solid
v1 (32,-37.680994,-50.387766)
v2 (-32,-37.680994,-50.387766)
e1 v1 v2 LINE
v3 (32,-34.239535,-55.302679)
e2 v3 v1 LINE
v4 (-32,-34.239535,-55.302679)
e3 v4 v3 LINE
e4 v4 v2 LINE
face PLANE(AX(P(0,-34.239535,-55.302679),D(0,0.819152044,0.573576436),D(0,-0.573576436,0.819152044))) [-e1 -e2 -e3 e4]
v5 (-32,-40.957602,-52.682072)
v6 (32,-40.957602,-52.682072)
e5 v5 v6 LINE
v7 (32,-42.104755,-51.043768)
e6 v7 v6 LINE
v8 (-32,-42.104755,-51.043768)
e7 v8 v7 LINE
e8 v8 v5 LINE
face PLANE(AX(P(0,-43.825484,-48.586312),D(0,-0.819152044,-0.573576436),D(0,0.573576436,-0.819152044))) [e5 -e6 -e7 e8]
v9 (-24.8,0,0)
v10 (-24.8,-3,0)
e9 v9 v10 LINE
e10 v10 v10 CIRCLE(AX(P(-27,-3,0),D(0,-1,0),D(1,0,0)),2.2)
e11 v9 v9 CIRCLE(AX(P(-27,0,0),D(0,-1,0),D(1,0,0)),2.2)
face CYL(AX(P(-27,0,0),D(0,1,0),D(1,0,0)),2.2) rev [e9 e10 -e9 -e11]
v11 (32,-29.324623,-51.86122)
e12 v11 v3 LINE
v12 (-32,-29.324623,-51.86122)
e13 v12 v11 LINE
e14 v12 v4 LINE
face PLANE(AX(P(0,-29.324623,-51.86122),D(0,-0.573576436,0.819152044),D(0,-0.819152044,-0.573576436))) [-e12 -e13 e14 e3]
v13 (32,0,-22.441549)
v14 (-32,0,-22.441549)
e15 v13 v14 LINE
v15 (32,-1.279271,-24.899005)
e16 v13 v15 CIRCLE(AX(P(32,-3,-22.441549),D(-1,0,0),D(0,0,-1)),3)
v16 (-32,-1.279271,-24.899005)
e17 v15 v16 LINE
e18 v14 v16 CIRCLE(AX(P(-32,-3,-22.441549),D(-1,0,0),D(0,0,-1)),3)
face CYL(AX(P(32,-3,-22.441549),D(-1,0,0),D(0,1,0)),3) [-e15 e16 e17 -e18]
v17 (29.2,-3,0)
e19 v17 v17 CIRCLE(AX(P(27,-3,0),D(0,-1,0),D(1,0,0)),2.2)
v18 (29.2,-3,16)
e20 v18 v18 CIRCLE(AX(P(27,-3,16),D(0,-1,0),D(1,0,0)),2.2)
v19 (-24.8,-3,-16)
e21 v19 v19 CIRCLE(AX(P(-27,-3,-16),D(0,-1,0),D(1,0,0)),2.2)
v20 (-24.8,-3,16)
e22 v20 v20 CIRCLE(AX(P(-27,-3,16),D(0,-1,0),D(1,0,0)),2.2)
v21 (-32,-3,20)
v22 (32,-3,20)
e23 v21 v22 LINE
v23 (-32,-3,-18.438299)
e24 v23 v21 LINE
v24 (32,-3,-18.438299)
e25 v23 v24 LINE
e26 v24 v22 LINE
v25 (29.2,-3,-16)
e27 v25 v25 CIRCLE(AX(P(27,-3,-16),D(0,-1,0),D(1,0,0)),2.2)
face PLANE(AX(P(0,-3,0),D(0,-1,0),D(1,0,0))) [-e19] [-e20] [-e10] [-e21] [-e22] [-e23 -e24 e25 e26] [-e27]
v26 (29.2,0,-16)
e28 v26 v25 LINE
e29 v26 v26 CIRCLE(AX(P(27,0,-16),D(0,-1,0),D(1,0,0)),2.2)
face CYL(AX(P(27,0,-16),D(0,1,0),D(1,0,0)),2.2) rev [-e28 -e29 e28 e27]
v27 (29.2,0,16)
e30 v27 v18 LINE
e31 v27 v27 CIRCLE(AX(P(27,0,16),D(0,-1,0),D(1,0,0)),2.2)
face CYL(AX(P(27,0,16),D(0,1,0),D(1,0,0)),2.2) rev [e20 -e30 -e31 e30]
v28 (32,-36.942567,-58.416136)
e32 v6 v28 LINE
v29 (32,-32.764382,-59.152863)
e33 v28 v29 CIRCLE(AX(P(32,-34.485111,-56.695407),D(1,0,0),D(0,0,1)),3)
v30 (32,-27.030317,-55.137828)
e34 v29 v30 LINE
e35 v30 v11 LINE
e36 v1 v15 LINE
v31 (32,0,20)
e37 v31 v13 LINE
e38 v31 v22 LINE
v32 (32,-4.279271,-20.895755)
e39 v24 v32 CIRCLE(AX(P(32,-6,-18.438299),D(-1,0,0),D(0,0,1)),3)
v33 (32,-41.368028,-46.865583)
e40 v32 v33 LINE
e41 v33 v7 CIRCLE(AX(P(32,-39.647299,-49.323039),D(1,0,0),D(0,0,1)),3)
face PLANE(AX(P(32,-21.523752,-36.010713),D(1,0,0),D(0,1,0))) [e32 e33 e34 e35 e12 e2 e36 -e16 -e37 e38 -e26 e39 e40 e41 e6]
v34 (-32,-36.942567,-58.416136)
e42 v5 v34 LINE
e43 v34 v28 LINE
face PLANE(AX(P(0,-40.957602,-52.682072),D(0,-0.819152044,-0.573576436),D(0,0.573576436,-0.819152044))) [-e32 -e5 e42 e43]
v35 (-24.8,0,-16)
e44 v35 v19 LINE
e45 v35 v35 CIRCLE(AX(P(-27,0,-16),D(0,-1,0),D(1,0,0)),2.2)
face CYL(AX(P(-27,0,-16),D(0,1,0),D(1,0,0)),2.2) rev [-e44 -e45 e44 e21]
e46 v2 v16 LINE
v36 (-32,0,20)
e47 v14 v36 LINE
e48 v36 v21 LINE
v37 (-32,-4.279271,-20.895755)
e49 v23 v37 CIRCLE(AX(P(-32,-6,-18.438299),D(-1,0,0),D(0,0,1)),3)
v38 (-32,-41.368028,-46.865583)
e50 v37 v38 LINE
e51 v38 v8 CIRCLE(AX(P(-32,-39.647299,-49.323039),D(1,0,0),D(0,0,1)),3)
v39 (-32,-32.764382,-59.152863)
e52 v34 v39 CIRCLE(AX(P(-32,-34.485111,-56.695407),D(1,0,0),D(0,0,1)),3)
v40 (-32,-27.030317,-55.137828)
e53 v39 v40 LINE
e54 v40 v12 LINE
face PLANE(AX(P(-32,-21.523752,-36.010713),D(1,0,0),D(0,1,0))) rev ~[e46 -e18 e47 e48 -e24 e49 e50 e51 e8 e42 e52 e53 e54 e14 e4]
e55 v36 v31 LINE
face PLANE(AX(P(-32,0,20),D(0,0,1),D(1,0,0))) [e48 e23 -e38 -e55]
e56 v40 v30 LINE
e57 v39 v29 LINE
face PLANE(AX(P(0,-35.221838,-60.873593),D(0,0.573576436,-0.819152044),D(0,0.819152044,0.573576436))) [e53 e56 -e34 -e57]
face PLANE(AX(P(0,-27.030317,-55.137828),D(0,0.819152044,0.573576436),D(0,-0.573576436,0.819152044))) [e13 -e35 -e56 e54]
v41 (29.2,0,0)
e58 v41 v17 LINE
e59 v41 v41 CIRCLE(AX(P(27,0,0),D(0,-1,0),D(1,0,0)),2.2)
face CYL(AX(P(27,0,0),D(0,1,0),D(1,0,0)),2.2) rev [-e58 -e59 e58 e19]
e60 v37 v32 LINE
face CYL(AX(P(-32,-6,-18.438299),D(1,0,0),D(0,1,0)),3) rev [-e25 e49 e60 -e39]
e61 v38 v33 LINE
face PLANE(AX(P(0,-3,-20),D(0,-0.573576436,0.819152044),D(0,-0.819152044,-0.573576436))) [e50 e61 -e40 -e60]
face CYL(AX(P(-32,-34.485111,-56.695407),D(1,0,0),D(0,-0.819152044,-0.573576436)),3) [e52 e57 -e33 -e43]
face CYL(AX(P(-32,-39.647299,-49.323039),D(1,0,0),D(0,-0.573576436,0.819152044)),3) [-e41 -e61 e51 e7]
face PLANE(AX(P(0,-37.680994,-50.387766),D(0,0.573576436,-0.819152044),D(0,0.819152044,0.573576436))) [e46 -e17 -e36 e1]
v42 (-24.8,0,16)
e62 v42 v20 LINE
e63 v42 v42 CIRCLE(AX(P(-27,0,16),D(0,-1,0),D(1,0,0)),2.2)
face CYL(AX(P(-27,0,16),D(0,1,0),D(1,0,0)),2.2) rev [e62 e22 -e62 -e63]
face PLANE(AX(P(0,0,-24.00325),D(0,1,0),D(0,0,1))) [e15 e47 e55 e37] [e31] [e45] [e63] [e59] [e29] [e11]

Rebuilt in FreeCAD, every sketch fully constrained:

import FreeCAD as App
import Part
import Sketcher

V = App.Vector
Q = App.Units.Quantity


def edges_at(feature, points):
    """Names of the edges that pass closest to the given points."""
    edges = feature.Shape.Edges
    near = lambda p: min(range(len(edges)), key=lambda i: edges[i].distToShape(Part.Vertex(*p))[0])
    return sorted({f"Edge{near(p) + 1}" for p in points})

doc = App.newDocument("Part")
body = doc.addObject("PartDesign::Body", "Body")

# Sketch on XZ plane
sketch1 = body.newObject("Sketcher::SketchObject", "Sketch")
sketch1.AttachmentSupport = (doc.getObject("XZ_Plane"), [""])
sketch1.MapMode = "FlatFace"
sketch1.addGeometry(Part.LineSegment(V(-32, 20, 0), V(-32, -20, 0)), False)
sketch1.addGeometry(Part.LineSegment(V(-32, -20, 0), V(32, -20, 0)), False)
sketch1.addGeometry(Part.LineSegment(V(32, -20, 0), V(32, 20, 0)), False)
sketch1.addGeometry(Part.LineSegment(V(32, 20, 0), V(-32, 20, 0)), False)
sketch1.addGeometry(Part.Circle(V(-27, -16, 0), V(0, 0, 1), 2.2), False)
sketch1.addGeometry(Part.Circle(V(-27, 0, 0), V(0, 0, 1), 2.2), False)
sketch1.addGeometry(Part.Circle(V(27, -16, 0), V(0, 0, 1), 2.2), False)
sketch1.addGeometry(Part.Circle(V(27, 0, 0), V(0, 0, 1), 2.2), False)
sketch1.addGeometry(Part.Circle(V(-27, 16, 0), V(0, 0, 1), 2.2), False)
sketch1.addGeometry(Part.Circle(V(27, 16, 0), V(0, 0, 1), 2.2), False)
sketch1.addConstraint(Sketcher.Constraint("Coincident", 0, 2, 1, 1))
sketch1.addConstraint(Sketcher.Constraint("Coincident", 1, 2, 2, 1))
sketch1.addConstraint(Sketcher.Constraint("Coincident", 2, 2, 3, 1))
sketch1.addConstraint(Sketcher.Constraint("Coincident", 3, 2, 0, 1))
sketch1.addConstraint(Sketcher.Constraint("Vertical", 0))
sketch1.addConstraint(Sketcher.Constraint("Horizontal", 1))
sketch1.addConstraint(Sketcher.Constraint("Vertical", 2))
sketch1.addConstraint(Sketcher.Constraint("Horizontal", 3))
sketch1.addConstraint(Sketcher.Constraint("Equal", 4, 5))
sketch1.addConstraint(Sketcher.Constraint("Equal", 5, 6))
sketch1.addConstraint(Sketcher.Constraint("Equal", 6, 7))
sketch1.addConstraint(Sketcher.Constraint("Equal", 7, 8))
sketch1.addConstraint(Sketcher.Constraint("Equal", 8, 9))
sketch1.addConstraint(Sketcher.Constraint("Symmetric", 5, 3, 7, 3, -1, 1))
sketch1.addConstraint(Sketcher.Constraint("Symmetric", 6, 3, 8, 3, -1, 1))
sketch1.addConstraint(Sketcher.Constraint("Symmetric", 4, 3, 9, 3, -1, 1))
sketch1.addConstraint(Sketcher.Constraint("Symmetric", 0, 2, 2, 2, -1, 1))
sketch1.addConstraint(Sketcher.Constraint("Symmetric", 4, 3, 6, 3, -2))
sketch1.addConstraint(Sketcher.Constraint("PointOnObject", 5, 3, -1))
sketch1.addConstraint(Sketcher.Constraint("Vertical", 4, 3, 5, 3))
sketch1.addConstraint(Sketcher.Constraint("Diameter", 4, Q("4.4 mm")))
sketch1.addConstraint(Sketcher.Constraint("DistanceX", 1, 1, 1, 2, Q("64 mm")))
sketch1.addConstraint(Sketcher.Constraint("DistanceY", 0, 2, 0, 1, Q("40 mm")))
sketch1.addConstraint(Sketcher.Constraint("DistanceX", 4, 3, -1, 1, Q("27 mm")))
sketch1.addConstraint(Sketcher.Constraint("DistanceY", 4, 3, -1, 1, Q("16 mm")))
pad1 = body.newObject("PartDesign::Pad", "Pad")
pad1.Profile = sketch1
pad1.Length = 3

# Sketch on YZ plane
sketch2 = body.newObject("Sketcher::SketchObject", "Sketch001")
sketch2.AttachmentSupport = (doc.getObject("YZ_Plane"), [""])
sketch2.MapMode = "FlatFace"
sketch2.addGeometry(Part.LineSegment(V(0, -20, 0), V(-3, -20, 0)), False)
sketch2.addGeometry(Part.LineSegment(V(-3, -20, 0), V(-43.8, -48.6, 0)), False)
sketch2.addGeometry(Part.LineSegment(V(-43.8, -48.6, 0), V(-41, -52.7, 0)), False)
sketch2.addGeometry(Part.LineSegment(V(-41, -52.7, 0), V(-35.2, -60.9, 0)), False)
sketch2.addGeometry(Part.LineSegment(V(-35.2, -60.9, 0), V(-27, -55.1, 0)), False)
sketch2.addGeometry(Part.LineSegment(V(-27, -55.1, 0), V(-29.3, -51.9, 0)), False)
sketch2.addGeometry(Part.LineSegment(V(-29.3, -51.9, 0), V(-34.2, -55.3, 0)), False)
sketch2.addGeometry(Part.LineSegment(V(-34.2, -55.3, 0), V(-37.7, -50.4, 0)), False)
sketch2.addGeometry(Part.LineSegment(V(-37.7, -50.4, 0), V(0, -24, 0)), False)
sketch2.addGeometry(Part.LineSegment(V(0, -24, 0), V(0, -20, 0)), False)
sketch2.addConstraint(Sketcher.Constraint("Coincident", 0, 2, 1, 1))
sketch2.addConstraint(Sketcher.Constraint("Coincident", 1, 2, 2, 1))
sketch2.addConstraint(Sketcher.Constraint("Coincident", 2, 2, 3, 1))
sketch2.addConstraint(Sketcher.Constraint("Coincident", 3, 2, 4, 1))
sketch2.addConstraint(Sketcher.Constraint("Coincident", 4, 2, 5, 1))
sketch2.addConstraint(Sketcher.Constraint("Coincident", 5, 2, 6, 1))
sketch2.addConstraint(Sketcher.Constraint("Coincident", 6, 2, 7, 1))
sketch2.addConstraint(Sketcher.Constraint("Coincident", 7, 2, 8, 1))
sketch2.addConstraint(Sketcher.Constraint("Coincident", 8, 2, 9, 1))
sketch2.addConstraint(Sketcher.Constraint("Coincident", 9, 2, 0, 1))
sketch2.addConstraint(Sketcher.Constraint("Horizontal", 0))
sketch2.addConstraint(Sketcher.Constraint("Vertical", 9))
sketch2.addConstraint(Sketcher.Constraint("PointOnObject", 8, 2, -2))
sketch2.addConstraint(Sketcher.Constraint("Perpendicular", 1, 2))
sketch2.addConstraint(Sketcher.Constraint("Parallel", 2, 3))
sketch2.addConstraint(Sketcher.Constraint("Perpendicular", 3, 4))
sketch2.addConstraint(Sketcher.Constraint("Perpendicular", 4, 5))
sketch2.addConstraint(Sketcher.Constraint("Perpendicular", 5, 6))
sketch2.addConstraint(Sketcher.Constraint("Perpendicular", 6, 7))
sketch2.addConstraint(Sketcher.Constraint("Perpendicular", 7, 8))
sketch2.addConstraint(Sketcher.Constraint("Equal", 3, 4))
sketch2.addConstraint(Sketcher.Constraint("Equal", 6, 7))
sketch2.addConstraint(Sketcher.Constraint("DistanceX", 0, 2, 0, 1, Q("3 mm")))
sketch2.addConstraint(Sketcher.Constraint("Angle", 1, Q("-145 deg")))
sketch2.addConstraint(Sketcher.Constraint("Distance", 2, Q("5 mm")))
sketch2.addConstraint(Sketcher.Constraint("Distance", 3, Q("10 mm")))
sketch2.addConstraint(Sketcher.Constraint("Distance", 5, Q("4 mm")))
sketch2.addConstraint(Sketcher.Constraint("Distance", 6, Q("6 mm")))
sketch2.addConstraint(Sketcher.Constraint("Distance", 8, Q("46 mm")))
sketch2.addConstraint(Sketcher.Constraint("DistanceY", 0, 2, -1, 1, Q("20 mm")))
pad2 = body.newObject("PartDesign::Pad", "Pad001")
pad2.Profile = sketch2
pad2.Length = 64
pad2.Midplane = True
doc.recompute()

fillet = body.newObject("PartDesign::Fillet", "Fillet")
fillet.Base = (pad2, edges_at(pad2, [
    (0, -3, -20),
    (0, 0, -24.003),
    (0, -43.825, -48.586),
    (0, -35.222, -60.874),
]))
fillet.Radius = 3

doc.recompute()
